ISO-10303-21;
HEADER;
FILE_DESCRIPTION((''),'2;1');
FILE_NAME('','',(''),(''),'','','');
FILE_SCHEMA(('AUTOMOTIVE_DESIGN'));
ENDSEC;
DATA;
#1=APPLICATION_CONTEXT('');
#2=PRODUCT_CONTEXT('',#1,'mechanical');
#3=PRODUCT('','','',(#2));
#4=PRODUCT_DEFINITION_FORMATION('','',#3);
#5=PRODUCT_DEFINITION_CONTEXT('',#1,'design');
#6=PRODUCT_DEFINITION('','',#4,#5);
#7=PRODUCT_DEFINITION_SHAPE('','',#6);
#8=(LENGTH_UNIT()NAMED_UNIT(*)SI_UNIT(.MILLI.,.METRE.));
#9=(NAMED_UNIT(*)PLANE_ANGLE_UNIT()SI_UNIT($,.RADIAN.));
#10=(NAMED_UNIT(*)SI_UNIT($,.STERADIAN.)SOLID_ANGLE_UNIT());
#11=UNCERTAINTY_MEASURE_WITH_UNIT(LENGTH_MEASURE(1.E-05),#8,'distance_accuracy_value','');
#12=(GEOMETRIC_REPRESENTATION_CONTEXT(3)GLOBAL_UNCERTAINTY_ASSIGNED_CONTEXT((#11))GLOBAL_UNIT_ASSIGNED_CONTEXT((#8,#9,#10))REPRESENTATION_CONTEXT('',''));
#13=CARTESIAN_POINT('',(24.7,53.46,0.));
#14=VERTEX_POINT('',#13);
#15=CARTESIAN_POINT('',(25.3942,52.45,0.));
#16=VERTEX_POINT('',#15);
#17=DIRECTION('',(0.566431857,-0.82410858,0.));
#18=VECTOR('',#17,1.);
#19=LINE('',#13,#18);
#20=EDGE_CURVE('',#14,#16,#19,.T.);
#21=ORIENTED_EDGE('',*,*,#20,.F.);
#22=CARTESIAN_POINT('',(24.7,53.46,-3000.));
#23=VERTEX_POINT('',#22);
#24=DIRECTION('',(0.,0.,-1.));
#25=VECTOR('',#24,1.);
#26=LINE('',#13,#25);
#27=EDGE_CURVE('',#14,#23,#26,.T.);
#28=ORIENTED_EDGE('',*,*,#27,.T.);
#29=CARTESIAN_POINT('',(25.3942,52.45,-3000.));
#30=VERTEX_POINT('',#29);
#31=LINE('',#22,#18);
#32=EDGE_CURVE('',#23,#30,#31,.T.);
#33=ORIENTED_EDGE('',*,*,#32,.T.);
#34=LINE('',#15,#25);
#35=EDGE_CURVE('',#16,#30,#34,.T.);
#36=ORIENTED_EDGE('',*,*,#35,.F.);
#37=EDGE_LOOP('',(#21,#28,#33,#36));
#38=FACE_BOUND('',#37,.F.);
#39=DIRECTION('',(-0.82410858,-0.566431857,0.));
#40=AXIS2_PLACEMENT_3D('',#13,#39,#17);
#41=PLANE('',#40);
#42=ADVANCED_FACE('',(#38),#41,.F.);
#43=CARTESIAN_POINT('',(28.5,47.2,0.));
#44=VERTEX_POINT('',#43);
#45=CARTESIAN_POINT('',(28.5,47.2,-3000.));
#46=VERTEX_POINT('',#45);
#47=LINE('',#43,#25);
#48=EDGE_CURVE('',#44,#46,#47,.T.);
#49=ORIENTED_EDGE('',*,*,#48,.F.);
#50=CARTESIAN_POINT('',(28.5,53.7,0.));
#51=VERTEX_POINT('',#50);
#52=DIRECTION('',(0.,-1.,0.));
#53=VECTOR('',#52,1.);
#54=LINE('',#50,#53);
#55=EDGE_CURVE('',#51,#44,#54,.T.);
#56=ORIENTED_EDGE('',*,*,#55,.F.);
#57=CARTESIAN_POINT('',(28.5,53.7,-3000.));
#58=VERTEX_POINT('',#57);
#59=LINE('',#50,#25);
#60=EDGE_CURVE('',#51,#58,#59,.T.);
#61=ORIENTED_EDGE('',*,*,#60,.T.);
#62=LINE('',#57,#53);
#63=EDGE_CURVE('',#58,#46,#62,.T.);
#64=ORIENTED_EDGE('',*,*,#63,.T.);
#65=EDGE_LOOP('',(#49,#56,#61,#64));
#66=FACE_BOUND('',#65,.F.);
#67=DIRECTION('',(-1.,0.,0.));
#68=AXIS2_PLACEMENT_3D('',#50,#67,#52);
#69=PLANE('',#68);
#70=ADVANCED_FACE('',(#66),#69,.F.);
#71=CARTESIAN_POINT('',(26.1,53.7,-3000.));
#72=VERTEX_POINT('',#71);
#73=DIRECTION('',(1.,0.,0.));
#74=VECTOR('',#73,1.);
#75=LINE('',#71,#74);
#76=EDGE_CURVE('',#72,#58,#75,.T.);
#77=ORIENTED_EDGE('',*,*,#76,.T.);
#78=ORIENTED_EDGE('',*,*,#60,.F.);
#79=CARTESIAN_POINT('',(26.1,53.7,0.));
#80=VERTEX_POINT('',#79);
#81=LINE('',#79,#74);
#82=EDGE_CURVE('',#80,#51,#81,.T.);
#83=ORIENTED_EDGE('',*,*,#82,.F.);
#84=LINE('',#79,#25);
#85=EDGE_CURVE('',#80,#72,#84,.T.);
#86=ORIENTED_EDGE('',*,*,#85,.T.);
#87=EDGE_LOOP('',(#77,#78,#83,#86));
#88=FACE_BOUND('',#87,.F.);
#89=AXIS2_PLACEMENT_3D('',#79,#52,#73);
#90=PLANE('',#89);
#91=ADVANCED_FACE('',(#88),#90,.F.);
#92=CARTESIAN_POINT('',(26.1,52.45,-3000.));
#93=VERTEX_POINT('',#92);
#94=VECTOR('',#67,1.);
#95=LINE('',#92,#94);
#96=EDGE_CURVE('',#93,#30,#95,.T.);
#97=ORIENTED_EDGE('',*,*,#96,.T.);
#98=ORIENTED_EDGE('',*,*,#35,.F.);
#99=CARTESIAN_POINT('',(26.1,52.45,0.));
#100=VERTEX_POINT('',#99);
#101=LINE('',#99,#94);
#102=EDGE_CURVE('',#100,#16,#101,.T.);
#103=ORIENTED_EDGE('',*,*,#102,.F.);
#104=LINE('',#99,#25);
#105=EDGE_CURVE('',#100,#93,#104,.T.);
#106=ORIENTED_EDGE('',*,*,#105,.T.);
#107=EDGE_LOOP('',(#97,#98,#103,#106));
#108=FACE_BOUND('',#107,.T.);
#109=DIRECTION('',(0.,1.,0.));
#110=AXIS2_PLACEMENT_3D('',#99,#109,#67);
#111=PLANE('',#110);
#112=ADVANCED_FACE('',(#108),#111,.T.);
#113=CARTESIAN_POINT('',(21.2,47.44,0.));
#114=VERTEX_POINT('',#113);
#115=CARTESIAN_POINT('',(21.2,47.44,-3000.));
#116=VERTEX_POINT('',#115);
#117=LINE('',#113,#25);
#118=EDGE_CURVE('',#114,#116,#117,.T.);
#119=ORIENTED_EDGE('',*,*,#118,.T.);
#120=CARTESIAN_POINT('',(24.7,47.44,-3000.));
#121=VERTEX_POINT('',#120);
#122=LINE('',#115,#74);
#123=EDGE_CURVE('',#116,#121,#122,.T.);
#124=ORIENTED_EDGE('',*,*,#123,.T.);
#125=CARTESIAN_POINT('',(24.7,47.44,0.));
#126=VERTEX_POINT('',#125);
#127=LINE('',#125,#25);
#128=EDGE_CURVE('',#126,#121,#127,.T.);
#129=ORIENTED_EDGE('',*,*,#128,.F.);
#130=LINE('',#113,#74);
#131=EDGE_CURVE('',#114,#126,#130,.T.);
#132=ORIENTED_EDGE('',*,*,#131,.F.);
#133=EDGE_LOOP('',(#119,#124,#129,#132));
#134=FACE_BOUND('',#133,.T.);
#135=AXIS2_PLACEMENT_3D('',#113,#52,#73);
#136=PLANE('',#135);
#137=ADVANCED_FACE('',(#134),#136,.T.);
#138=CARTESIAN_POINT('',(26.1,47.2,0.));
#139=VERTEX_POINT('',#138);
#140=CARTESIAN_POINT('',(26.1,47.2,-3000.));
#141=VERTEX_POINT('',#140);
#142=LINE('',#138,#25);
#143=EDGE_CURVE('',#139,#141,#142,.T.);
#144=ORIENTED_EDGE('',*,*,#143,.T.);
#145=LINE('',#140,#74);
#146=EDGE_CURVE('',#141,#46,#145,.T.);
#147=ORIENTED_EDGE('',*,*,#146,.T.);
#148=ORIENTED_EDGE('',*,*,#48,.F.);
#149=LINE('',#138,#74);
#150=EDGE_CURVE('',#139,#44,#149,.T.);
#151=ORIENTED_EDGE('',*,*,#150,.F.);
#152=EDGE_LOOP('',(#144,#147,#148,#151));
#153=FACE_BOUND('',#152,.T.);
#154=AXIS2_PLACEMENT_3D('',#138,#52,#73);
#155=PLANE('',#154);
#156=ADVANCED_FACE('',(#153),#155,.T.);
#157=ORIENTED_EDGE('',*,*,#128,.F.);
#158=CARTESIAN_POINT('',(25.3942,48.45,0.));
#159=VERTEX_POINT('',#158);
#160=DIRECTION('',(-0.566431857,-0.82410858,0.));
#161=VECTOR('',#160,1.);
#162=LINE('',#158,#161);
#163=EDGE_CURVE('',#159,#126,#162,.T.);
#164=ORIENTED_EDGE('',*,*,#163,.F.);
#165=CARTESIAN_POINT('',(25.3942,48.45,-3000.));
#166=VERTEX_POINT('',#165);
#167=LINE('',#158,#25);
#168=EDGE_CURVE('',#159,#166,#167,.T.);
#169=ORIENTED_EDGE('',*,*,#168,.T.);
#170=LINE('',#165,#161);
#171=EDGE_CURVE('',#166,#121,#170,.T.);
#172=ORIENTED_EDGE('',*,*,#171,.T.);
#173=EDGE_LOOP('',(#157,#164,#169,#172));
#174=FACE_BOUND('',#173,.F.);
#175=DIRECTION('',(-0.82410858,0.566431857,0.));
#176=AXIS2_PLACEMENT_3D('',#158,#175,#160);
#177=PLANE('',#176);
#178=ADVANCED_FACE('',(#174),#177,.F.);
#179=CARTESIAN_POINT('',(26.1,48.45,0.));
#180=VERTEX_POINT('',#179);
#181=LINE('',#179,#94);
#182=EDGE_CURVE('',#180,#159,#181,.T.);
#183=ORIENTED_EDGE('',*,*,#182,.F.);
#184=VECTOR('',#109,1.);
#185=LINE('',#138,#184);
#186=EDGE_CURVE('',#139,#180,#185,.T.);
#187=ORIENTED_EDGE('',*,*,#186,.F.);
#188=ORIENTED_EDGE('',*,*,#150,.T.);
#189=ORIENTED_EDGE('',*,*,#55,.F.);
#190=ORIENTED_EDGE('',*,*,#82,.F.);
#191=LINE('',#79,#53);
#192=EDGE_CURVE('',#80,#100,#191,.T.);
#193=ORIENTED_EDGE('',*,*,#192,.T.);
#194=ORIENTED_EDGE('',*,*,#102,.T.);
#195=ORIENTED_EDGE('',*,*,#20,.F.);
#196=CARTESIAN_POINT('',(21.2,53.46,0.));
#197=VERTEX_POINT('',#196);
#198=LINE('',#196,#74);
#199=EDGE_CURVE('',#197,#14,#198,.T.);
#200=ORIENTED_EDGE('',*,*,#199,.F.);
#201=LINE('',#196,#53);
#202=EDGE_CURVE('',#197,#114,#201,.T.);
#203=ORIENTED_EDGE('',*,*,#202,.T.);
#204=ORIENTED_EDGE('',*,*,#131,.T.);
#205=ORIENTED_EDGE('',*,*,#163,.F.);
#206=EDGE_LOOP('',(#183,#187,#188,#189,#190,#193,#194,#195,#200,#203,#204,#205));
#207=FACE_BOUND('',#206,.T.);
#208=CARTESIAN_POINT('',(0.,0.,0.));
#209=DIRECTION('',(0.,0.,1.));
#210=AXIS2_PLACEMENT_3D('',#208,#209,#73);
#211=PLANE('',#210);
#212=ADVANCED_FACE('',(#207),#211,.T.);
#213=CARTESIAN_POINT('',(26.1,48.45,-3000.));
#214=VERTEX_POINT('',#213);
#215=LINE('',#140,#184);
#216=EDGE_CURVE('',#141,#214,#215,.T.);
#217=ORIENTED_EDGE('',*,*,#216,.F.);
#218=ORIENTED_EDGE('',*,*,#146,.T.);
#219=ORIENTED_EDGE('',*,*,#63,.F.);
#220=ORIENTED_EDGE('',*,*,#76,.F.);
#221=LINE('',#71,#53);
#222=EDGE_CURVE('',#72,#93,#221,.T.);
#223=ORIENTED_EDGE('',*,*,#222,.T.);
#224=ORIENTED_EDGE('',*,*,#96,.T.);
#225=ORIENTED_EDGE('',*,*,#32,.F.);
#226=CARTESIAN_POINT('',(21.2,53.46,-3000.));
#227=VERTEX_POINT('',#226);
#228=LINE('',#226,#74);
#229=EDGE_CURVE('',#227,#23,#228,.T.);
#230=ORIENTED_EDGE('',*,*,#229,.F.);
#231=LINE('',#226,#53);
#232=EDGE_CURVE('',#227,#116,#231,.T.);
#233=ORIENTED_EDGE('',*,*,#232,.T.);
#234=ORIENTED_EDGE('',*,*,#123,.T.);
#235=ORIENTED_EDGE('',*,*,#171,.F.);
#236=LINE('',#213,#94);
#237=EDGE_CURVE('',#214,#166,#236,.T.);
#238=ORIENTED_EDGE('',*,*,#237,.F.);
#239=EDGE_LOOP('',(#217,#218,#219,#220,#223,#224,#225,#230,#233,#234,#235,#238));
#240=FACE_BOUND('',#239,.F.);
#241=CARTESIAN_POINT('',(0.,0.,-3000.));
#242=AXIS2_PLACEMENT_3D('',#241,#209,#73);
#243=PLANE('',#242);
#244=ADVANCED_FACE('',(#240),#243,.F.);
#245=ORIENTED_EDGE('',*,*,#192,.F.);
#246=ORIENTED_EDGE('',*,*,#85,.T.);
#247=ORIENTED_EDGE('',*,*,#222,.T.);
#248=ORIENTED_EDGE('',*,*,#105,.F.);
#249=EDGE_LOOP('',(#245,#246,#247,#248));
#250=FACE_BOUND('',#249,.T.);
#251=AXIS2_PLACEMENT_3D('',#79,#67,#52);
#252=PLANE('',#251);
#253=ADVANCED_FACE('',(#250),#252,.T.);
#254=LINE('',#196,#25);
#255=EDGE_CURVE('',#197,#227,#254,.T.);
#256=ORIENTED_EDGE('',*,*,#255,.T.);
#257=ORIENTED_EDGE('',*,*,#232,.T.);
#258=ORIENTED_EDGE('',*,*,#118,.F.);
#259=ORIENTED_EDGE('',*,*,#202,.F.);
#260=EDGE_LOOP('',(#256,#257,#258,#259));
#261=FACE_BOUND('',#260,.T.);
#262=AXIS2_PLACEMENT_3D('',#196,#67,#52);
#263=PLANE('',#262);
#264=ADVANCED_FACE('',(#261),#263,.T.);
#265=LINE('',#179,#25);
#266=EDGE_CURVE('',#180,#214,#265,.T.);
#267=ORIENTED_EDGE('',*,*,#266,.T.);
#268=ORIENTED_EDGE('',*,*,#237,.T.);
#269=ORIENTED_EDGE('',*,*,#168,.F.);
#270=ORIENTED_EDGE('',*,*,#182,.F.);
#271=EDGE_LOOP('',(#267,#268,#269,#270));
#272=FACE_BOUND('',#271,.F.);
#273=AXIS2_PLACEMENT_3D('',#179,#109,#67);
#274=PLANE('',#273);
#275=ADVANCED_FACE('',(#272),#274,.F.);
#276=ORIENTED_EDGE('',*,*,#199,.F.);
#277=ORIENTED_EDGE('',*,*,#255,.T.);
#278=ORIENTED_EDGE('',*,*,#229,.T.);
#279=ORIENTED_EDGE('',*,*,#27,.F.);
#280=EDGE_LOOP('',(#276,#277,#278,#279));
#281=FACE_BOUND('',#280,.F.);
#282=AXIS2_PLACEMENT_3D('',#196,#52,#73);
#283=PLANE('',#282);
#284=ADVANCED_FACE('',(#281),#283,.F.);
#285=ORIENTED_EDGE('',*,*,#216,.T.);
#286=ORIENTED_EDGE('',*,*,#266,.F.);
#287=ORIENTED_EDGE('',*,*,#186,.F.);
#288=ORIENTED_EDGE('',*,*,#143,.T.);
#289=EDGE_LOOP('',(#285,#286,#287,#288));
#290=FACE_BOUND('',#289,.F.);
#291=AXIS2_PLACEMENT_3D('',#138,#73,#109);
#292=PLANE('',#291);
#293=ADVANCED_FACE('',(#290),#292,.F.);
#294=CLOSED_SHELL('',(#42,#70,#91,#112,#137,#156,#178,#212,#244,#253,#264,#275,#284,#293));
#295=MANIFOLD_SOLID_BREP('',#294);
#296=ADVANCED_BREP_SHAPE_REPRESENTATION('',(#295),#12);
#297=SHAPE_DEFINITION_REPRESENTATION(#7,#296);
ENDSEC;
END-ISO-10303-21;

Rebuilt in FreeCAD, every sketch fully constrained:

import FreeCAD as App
import Part
import Sketcher

doc = App.newDocument("Part")
body = doc.addObject("PartDesign::Body", "Body")

# Sketch on XY plane
sketch1 = body.newObject("Sketcher::SketchObject", "Sketch")
sketch1.AttachmentSupport = (doc.getObject("XY_Plane"), [""])
sketch1.MapMode = "FlatFace"
sketch1.addGeometry([
    Part.LineSegment(App.Vector(28.5, 47.2, 0), App.Vector(28.5, 53.7, 0)),  # 0
    Part.LineSegment(App.Vector(28.5, 53.7, 0), App.Vector(26.1, 53.7, 0)),  # 1
    Part.LineSegment(App.Vector(26.1, 53.7, 0), App.Vector(26.1, 52.45, 0)),  # 2
    Part.LineSegment(App.Vector(26.1, 52.45, 0), App.Vector(25.3942, 52.45, 0)),  # 3
    Part.LineSegment(App.Vector(25.3942, 52.45, 0), App.Vector(24.7, 53.46, 0)),  # 4
    Part.LineSegment(App.Vector(24.7, 53.46, 0), App.Vector(21.2, 53.46, 0)),  # 5
    Part.LineSegment(App.Vector(21.2, 53.46, 0), App.Vector(21.2, 47.44, 0)),  # 6
    Part.LineSegment(App.Vector(21.2, 47.44, 0), App.Vector(24.7, 47.44, 0)),  # 7
    Part.LineSegment(App.Vector(24.7, 47.44, 0), App.Vector(25.3942, 48.45, 0)),  # 8
    Part.LineSegment(App.Vector(25.3942, 48.45, 0), App.Vector(26.1, 48.45, 0)),  # 9
    Part.LineSegment(App.Vector(26.1, 48.45, 0), App.Vector(26.1, 47.2, 0)),  # 10
    Part.LineSegment(App.Vector(26.1, 47.2, 0), App.Vector(28.5, 47.2, 0)),  # 11
], False)
sketch1.addConstraint([
    Sketcher.Constraint("Coincident", 0, 2, 1, 1),
    Sketcher.Constraint("Coincident", 1, 2, 2, 1),
    Sketcher.Constraint("Coincident", 2, 2, 3, 1),
    Sketcher.Constraint("Coincident", 3, 2, 4, 1),
    Sketcher.Constraint("Coincident", 4, 2, 5, 1),
    Sketcher.Constraint("Coincident", 5, 2, 6, 1),
    Sketcher.Constraint("Coincident", 6, 2, 7, 1),
    Sketcher.Constraint("Coincident", 7, 2, 8, 1),
    Sketcher.Constraint("Coincident", 8, 2, 9, 1),
    Sketcher.Constraint("Coincident", 9, 2, 10, 1),
    Sketcher.Constraint("Coincident", 10, 2, 11, 1),
    Sketcher.Constraint("Coincident", 11, 2, 0, 1),
    Sketcher.Constraint("Vertical", 0),
    Sketcher.Constraint("Horizontal", 1),
    Sketcher.Constraint("Vertical", 2),
    Sketcher.Constraint("Horizontal", 3),
    Sketcher.Constraint("Horizontal", 5),
    Sketcher.Constraint("Vertical", 6),
    Sketcher.Constraint("Horizontal", 7),
    Sketcher.Constraint("Horizontal", 9),
    Sketcher.Constraint("Vertical", 10),
    Sketcher.Constraint("Horizontal", 11),
    Sketcher.Constraint("Vertical", 4, 2, 7, 2),
    Sketcher.Constraint("Vertical", 3, 2, 8, 2),
    Sketcher.Constraint("Vertical", 2, 2, 9, 2),
    Sketcher.Constraint("Equal", 2, 10),
    Sketcher.Constraint("Equal", 4, 8),
    Sketcher.Constraint("DistanceX", 1, 2, 1, 1, 2.4),
    Sketcher.Constraint("DistanceX", 5, 2, 5, 1, 3.5),
    Sketcher.Constraint("DistanceY", 0, 1, 0, 2, 6.5),
    Sketcher.Constraint("DistanceY", 8, 2, 3, 2, 4.0),
    Sketcher.Constraint("DistanceY", 6, 2, 6, 1, 6.02),
    Sketcher.Constraint("DistanceX", 3, 2, 3, 1, 0.7058),
    Sketcher.Constraint("DistanceX", -1, 1, 0, 2, 28.5),
    Sketcher.Constraint("DistanceY", -1, 1, 0, 2, 53.7),
    Sketcher.Constraint("DistanceX", -1, 1, 4, 2, 24.7),
])
pad1 = body.newObject("PartDesign::Pad", "Pad")
pad1.Profile = sketch1
pad1.Length = 3000
pad1.Reversed = True

doc.recompute()
